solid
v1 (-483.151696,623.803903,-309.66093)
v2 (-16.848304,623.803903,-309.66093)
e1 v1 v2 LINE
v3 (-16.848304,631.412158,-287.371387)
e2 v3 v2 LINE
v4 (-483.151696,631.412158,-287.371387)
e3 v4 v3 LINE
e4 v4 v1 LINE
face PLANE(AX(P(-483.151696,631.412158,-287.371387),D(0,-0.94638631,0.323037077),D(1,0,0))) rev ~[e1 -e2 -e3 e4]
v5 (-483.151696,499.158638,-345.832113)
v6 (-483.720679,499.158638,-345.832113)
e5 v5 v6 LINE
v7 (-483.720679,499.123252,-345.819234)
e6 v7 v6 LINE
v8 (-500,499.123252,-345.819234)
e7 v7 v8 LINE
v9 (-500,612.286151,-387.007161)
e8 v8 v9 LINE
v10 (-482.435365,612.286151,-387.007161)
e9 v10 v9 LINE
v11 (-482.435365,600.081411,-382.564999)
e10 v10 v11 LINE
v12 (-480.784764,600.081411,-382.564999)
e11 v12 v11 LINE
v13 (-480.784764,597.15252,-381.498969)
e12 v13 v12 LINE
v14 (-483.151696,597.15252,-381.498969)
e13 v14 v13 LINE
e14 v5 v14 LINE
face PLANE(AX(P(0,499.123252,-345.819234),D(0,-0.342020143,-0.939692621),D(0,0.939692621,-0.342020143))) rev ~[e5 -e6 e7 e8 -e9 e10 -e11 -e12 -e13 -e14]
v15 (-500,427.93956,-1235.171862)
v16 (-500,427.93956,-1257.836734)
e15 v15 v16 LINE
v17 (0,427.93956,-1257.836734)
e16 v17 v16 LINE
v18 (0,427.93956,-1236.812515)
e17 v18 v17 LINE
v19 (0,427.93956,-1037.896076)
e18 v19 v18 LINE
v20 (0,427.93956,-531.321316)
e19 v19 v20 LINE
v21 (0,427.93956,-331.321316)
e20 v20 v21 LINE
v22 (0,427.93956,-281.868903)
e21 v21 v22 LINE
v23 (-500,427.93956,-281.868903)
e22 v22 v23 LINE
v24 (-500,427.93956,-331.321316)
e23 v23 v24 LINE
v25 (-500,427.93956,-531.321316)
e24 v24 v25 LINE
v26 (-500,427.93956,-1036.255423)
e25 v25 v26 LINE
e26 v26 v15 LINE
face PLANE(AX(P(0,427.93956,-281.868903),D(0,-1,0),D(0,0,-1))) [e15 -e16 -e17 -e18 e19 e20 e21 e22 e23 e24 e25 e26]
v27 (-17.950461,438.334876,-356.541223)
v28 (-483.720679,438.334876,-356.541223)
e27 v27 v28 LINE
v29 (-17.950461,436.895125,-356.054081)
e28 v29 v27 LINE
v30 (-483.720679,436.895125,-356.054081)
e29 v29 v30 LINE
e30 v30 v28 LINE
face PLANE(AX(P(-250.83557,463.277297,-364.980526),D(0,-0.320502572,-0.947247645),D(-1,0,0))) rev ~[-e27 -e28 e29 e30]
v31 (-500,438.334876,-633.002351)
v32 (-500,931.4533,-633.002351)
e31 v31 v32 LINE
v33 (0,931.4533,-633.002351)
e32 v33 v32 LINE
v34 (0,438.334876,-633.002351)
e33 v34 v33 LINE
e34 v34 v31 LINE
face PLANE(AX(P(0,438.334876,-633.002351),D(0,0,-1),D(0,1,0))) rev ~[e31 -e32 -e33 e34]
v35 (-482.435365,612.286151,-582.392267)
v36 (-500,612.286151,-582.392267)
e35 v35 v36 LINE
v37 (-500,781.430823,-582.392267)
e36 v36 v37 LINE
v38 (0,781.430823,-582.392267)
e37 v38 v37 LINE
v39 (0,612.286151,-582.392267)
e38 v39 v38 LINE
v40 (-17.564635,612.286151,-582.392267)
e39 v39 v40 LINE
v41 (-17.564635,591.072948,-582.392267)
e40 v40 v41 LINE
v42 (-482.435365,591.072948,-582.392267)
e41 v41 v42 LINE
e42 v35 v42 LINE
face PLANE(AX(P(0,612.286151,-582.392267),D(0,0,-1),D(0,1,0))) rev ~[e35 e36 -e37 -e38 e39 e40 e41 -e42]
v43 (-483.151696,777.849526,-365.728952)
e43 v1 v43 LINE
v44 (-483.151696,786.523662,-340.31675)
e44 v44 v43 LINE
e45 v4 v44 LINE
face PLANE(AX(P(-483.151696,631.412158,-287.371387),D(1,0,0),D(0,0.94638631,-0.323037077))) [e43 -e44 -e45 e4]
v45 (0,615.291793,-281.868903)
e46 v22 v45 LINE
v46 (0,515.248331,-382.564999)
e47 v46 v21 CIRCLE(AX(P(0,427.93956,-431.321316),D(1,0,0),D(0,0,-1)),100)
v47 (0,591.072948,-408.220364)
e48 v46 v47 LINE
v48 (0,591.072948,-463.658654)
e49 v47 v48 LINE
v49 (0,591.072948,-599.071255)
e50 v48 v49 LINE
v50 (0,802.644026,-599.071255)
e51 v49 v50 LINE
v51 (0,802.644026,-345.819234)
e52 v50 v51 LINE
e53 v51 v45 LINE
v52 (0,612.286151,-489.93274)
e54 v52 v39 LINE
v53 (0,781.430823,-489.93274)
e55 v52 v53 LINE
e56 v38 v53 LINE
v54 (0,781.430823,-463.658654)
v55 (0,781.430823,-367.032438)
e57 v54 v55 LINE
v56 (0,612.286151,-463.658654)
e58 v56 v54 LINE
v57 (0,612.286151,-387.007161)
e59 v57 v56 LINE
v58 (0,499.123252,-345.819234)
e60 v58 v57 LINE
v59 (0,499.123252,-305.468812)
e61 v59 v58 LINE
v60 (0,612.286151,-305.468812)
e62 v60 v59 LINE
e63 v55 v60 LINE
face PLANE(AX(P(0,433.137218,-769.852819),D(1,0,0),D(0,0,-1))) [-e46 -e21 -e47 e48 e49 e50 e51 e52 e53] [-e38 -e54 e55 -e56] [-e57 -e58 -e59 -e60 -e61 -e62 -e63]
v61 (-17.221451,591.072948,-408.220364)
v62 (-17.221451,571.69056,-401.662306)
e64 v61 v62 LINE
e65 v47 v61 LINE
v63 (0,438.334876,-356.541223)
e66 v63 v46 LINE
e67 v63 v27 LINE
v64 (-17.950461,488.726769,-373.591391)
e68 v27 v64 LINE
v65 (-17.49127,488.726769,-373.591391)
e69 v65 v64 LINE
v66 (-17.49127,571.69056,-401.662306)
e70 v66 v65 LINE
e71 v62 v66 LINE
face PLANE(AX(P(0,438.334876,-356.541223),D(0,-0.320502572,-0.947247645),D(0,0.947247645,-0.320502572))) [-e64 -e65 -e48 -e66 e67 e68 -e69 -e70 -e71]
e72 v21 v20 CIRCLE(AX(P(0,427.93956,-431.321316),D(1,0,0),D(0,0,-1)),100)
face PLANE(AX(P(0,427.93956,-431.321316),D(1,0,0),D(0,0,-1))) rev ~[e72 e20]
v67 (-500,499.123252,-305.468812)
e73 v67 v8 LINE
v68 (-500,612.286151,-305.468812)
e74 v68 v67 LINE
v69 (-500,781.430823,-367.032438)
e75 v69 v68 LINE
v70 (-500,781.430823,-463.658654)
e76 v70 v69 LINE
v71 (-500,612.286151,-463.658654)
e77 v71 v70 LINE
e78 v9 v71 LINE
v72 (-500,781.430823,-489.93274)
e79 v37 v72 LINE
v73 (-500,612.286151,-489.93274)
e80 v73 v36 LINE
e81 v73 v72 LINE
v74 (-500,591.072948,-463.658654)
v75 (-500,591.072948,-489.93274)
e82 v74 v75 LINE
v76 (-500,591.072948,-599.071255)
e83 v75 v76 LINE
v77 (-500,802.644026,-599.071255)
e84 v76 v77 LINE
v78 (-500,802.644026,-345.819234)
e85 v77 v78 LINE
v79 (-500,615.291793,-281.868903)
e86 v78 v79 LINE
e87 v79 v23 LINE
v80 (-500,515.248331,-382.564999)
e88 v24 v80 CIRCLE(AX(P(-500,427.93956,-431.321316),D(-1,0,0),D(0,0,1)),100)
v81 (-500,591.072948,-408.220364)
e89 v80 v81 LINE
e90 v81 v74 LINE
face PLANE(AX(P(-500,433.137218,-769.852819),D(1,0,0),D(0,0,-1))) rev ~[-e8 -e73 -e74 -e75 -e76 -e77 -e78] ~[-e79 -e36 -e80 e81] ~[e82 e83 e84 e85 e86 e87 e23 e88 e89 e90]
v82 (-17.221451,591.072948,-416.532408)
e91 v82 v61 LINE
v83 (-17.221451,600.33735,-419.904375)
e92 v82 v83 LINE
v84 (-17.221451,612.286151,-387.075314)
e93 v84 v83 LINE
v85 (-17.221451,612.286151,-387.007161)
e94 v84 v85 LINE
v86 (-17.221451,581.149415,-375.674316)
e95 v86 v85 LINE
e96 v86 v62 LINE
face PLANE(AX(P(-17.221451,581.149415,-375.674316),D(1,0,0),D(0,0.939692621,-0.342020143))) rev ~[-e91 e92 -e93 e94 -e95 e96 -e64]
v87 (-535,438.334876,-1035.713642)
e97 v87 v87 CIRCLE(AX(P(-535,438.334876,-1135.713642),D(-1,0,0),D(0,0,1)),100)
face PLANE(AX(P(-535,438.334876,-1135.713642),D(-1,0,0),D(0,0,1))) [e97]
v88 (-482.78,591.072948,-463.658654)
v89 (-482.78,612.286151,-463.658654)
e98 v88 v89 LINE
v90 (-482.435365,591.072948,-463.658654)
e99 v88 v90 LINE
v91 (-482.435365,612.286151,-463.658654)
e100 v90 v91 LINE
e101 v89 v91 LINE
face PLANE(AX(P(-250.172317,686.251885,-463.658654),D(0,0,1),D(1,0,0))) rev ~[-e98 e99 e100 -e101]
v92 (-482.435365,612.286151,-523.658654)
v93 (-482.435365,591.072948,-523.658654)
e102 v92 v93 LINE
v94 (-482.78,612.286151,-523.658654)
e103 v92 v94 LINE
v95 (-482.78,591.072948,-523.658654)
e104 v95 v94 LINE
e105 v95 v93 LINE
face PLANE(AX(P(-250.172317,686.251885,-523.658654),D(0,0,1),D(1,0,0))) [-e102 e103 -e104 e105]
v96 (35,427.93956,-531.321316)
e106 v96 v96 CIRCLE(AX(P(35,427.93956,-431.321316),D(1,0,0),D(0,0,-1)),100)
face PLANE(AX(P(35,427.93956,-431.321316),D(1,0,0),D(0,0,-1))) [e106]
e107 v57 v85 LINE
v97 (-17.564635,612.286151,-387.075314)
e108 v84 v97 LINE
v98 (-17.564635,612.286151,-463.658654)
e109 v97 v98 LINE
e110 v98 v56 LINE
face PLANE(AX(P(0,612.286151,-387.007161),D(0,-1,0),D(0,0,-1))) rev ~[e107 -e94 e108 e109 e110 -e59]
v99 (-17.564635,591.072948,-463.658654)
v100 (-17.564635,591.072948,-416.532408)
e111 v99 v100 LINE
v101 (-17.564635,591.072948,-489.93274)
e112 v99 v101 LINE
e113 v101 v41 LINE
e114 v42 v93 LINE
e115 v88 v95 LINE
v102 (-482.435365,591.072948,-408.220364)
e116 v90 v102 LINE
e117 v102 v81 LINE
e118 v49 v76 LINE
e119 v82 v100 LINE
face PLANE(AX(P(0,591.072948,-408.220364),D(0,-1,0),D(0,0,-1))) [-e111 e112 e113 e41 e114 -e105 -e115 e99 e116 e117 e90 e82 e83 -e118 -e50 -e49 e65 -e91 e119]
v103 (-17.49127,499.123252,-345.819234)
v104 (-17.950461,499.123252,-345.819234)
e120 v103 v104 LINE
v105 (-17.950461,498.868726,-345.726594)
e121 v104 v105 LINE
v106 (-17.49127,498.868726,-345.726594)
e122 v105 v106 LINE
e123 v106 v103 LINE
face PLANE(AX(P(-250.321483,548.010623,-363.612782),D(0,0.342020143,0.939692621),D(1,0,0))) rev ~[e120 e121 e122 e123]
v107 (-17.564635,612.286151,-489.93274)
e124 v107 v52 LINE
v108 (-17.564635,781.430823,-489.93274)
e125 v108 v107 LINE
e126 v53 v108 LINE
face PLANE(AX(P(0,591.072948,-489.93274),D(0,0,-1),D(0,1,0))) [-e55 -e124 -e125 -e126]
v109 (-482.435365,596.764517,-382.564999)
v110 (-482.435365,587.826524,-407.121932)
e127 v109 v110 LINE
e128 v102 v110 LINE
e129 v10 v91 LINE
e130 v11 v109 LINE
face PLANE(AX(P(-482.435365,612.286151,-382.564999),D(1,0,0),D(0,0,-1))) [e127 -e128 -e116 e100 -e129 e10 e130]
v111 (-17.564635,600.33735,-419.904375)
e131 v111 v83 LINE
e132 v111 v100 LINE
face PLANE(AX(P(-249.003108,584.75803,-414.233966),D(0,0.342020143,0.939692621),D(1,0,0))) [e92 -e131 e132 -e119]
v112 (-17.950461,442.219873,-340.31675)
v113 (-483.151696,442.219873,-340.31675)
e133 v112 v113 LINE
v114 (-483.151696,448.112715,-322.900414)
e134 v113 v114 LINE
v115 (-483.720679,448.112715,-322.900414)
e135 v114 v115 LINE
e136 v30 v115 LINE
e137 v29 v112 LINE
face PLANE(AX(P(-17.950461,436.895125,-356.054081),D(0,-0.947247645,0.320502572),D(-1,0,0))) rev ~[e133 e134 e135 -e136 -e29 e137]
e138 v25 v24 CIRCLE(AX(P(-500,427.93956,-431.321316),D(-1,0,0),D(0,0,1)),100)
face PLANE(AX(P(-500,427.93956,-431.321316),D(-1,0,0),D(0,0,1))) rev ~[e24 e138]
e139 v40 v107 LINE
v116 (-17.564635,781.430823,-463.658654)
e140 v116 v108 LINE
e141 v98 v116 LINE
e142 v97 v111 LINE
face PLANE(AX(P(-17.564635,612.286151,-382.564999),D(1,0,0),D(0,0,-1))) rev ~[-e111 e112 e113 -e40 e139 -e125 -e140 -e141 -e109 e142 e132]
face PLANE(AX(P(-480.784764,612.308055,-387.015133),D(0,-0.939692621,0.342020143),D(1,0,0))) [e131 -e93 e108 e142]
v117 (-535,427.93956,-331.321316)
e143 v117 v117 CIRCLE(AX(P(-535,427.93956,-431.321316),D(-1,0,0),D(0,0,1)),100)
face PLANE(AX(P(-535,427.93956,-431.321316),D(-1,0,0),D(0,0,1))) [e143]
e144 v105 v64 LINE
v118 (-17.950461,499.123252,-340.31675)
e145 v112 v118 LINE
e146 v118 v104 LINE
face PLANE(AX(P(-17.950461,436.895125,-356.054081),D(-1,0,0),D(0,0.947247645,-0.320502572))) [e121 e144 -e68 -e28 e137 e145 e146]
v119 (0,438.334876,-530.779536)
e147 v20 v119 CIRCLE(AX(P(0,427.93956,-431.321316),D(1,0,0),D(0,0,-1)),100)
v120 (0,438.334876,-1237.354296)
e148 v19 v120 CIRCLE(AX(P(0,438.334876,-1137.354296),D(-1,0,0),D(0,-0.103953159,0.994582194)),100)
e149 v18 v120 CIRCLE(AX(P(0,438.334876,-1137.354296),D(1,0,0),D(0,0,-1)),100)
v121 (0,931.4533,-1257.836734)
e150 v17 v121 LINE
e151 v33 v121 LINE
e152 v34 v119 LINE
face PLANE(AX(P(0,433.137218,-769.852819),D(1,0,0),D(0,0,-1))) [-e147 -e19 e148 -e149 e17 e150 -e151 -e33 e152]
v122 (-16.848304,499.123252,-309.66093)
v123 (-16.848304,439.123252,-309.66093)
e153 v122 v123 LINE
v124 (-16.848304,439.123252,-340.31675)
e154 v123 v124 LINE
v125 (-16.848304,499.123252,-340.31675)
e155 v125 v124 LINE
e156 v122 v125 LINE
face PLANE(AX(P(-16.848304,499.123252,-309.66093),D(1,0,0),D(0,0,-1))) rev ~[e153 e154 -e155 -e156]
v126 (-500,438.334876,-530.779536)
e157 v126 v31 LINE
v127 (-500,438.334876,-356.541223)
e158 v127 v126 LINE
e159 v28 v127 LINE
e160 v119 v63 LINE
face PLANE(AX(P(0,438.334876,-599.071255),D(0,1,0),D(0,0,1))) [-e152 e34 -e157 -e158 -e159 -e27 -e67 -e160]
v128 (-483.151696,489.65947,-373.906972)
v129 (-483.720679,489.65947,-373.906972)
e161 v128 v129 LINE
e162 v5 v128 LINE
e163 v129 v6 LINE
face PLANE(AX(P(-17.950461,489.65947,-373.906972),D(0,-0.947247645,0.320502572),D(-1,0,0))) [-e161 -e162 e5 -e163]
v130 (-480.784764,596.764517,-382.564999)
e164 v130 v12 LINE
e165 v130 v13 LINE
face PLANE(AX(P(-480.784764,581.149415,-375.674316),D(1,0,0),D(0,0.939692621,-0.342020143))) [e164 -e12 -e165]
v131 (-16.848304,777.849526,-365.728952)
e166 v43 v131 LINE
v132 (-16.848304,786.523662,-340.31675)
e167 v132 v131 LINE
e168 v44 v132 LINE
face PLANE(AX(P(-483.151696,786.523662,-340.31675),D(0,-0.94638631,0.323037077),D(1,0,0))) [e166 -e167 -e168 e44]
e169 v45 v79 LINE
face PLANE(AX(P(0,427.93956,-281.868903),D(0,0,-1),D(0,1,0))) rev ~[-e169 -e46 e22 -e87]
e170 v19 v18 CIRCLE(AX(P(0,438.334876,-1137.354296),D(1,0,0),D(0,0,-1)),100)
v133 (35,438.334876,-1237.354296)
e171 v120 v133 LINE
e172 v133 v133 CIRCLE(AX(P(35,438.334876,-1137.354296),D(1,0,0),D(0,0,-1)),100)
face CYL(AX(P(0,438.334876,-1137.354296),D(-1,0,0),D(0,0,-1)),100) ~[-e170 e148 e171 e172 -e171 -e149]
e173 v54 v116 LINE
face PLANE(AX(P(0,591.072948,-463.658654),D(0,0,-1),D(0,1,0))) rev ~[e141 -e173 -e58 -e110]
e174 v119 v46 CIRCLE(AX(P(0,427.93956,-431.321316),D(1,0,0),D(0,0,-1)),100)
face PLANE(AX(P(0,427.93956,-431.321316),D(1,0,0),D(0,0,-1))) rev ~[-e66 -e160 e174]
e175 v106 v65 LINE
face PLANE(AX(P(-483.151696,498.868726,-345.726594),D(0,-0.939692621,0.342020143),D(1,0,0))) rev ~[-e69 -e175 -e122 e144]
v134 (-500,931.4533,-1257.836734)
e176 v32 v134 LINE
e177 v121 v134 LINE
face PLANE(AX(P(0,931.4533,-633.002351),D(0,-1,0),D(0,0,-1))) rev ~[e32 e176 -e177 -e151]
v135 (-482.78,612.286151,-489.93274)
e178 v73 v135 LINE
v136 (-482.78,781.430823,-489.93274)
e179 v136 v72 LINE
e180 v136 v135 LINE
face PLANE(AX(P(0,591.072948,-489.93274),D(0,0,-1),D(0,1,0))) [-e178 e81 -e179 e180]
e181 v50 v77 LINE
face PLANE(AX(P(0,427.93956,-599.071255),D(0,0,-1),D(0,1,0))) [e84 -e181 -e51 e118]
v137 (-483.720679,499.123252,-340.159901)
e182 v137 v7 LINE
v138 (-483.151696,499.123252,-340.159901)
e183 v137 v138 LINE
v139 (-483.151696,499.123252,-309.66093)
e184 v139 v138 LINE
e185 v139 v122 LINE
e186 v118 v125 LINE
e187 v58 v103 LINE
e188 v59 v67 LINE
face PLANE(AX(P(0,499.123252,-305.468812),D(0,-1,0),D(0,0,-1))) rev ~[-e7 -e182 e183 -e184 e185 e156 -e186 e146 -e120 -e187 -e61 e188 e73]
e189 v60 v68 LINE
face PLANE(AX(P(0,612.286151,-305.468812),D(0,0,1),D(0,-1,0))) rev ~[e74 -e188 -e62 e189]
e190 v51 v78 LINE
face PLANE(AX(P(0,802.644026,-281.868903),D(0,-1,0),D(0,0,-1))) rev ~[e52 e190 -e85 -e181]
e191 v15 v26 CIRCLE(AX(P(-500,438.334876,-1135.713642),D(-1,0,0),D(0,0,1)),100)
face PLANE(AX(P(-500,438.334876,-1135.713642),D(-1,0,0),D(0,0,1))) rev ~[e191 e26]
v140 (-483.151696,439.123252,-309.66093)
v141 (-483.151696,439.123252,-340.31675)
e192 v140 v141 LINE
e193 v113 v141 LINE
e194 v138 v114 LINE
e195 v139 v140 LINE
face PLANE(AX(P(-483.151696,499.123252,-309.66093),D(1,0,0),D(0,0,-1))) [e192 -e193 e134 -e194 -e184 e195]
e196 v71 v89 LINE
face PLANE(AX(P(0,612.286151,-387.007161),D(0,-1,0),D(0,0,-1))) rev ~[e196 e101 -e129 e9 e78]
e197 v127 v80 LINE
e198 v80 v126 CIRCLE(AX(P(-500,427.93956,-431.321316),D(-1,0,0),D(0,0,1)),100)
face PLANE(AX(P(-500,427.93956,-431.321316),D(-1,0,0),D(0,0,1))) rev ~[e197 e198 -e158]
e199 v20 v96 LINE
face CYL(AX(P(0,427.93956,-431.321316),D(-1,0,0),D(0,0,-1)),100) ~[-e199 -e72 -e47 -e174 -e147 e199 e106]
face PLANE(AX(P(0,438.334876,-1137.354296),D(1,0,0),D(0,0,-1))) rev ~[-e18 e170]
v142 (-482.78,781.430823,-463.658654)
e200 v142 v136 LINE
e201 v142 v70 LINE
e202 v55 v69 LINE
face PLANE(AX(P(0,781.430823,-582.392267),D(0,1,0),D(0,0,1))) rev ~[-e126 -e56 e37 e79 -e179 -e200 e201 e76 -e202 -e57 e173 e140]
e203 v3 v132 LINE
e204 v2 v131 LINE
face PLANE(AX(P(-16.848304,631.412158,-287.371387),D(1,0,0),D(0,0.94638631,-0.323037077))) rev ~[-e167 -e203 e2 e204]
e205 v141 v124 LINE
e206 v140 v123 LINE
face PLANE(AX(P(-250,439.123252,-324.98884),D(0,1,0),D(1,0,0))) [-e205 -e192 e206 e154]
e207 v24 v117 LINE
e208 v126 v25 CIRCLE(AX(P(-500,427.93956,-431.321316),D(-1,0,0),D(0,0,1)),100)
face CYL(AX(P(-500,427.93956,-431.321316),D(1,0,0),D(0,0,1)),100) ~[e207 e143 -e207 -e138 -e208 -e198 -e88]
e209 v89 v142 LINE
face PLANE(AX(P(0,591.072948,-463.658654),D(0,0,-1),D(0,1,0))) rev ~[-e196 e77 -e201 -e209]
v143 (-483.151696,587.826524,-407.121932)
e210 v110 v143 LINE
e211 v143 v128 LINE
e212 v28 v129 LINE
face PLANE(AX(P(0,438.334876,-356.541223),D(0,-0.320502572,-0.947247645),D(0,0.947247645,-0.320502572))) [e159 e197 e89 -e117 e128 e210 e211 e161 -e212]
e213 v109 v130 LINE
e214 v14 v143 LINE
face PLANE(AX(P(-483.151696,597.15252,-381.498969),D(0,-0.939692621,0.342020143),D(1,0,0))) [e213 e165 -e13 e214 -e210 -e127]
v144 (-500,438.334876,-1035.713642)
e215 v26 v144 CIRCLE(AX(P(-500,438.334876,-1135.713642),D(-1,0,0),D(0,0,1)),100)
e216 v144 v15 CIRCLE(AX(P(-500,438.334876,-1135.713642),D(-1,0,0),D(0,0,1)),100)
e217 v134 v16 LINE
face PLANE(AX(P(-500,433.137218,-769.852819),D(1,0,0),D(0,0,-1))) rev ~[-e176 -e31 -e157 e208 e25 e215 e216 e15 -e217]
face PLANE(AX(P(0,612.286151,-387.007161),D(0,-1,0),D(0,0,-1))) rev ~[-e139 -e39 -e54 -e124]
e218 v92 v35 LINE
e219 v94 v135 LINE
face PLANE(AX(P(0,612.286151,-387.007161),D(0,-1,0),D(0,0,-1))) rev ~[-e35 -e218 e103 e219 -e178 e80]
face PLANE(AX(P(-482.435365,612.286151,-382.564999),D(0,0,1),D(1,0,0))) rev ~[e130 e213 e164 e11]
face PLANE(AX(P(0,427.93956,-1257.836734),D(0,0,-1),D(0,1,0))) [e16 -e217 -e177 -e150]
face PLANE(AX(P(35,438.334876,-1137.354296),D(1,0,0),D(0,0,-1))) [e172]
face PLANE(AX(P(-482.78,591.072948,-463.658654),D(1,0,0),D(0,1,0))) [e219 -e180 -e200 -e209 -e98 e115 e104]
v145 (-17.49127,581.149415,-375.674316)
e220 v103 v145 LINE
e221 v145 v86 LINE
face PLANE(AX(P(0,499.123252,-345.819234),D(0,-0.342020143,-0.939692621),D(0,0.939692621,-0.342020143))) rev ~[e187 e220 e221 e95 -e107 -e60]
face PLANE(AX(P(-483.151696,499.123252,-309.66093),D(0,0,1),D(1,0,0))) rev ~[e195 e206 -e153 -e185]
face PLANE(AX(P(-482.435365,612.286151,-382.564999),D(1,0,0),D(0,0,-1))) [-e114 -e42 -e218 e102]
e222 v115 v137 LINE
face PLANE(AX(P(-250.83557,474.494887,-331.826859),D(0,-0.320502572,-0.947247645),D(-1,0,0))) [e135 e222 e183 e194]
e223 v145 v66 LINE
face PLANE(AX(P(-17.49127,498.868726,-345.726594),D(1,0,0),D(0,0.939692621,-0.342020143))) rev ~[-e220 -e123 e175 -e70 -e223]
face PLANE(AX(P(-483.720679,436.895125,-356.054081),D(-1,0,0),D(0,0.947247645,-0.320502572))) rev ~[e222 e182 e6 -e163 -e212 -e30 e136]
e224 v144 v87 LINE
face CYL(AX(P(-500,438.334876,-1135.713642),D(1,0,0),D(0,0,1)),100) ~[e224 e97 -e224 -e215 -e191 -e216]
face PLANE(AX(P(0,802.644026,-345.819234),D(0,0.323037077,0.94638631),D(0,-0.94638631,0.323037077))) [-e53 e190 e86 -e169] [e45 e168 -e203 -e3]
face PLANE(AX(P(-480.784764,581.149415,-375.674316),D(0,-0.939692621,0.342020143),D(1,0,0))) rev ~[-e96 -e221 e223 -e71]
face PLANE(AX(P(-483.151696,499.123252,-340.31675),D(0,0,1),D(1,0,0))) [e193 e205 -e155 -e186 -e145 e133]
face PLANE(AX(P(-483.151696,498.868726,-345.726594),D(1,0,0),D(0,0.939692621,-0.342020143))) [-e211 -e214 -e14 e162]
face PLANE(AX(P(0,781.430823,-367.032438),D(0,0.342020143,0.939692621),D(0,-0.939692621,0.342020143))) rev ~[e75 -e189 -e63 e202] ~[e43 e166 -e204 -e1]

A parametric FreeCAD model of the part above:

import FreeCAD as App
import Part
import Sketcher
from FreeCAD import Vector
Q = App.Units.Quantity

doc = App.newDocument("Part")
body = doc.addObject("PartDesign::Body", "Body")

# Sketch on YZ plane
sketch1 = body.newObject("Sketcher::SketchObject", "Sketch")
sketch1.AttachmentSupport = (doc.getObject("YZ_Plane"), [""])
sketch1.MapMode = "FlatFace"
sketch1.addGeometry(Part.LineSegment(Vector(931, -633, 0), Vector(438, -633, 0)), False)
sketch1.addGeometry(Part.LineSegment(Vector(438, -633, 0), Vector(438, -1258, 0)), False)
sketch1.addGeometry(Part.LineSegment(Vector(438, -1258, 0), Vector(931, -1258, 0)), False)
sketch1.addGeometry(Part.LineSegment(Vector(931, -1258, 0), Vector(931, -633, 0)), False)
sketch1.addConstraint(Sketcher.Constraint("Coincident", 0, 2, 1, 1))
sketch1.addConstraint(Sketcher.Constraint("Coincident", 1, 2, 2, 1))
sketch1.addConstraint(Sketcher.Constraint("Coincident", 2, 2, 3, 1))
sketch1.addConstraint(Sketcher.Constraint("Coincident", 3, 2, 0, 1))
sketch1.addConstraint(Sketcher.Constraint("Horizontal", 0))
sketch1.addConstraint(Sketcher.Constraint("Vertical", 1))
sketch1.addConstraint(Sketcher.Constraint("Horizontal", 2))
sketch1.addConstraint(Sketcher.Constraint("Vertical", 3))
sketch1.addConstraint(Sketcher.Constraint("DistanceX", -1, 1, 2, 2, Q("931.4533 mm")))
sketch1.addConstraint(Sketcher.Constraint("DistanceX", 0, 2, 0, 1, Q("493.118424 mm")))
sketch1.addConstraint(Sketcher.Constraint("DistanceY", 1, 2, 1, 1, Q("624.834383 mm")))
sketch1.addConstraint(Sketcher.Constraint("DistanceY", 0, 2, -1, 1, Q("633.002351 mm")))
pad1 = body.newObject("PartDesign::Pad", "Pad")
pad1.Profile = sketch1
pad1.Length = 500
pad1.Reversed = True

# Sketch on YZ plane
sketch2 = body.newObject("Sketcher::SketchObject", "Sketch001")
sketch2.AttachmentSupport = (doc.getObject("YZ_Plane"), [""])
sketch2.MapMode = "FlatFace"
sketch2.addGeometry(Part.Circle(Vector(438, -1137, 0), Vector(0, 0, 1), 100), False)
sketch2.addConstraint(Sketcher.Constraint("Diameter", 0, Q("200 mm")))
sketch2.addConstraint(Sketcher.Constraint("DistanceX", -1, 1, 0, 3, Q("438.334876 mm")))
sketch2.addConstraint(Sketcher.Constraint("DistanceY", 0, 3, -1, 1, Q("1137.354296 mm")))
pad2 = body.newObject("PartDesign::Pad", "Pad001")
pad2.Profile = sketch2
pad2.Length = 35

# Sketch on YZ plane
sketch3 = body.newObject("Sketcher::SketchObject", "Sketch002")
sketch3.AttachmentSupport = (doc.getObject("YZ_Plane"), [""])
sketch3.MapMode = "FlatFace"
sketch3.addGeometry(Part.LineSegment(Vector(438, -282, 0), Vector(428, -282, 0)), False)
sketch3.addGeometry(Part.LineSegment(Vector(428, -282, 0), Vector(428, -1258, 0)), False)
sketch3.addGeometry(Part.LineSegment(Vector(428, -1258, 0), Vector(438, -1258, 0)), False)
sketch3.addGeometry(Part.LineSegment(Vector(438, -1258, 0), Vector(438, -282, 0)), False)
sketch3.addConstraint(Sketcher.Constraint("Coincident", 0, 2, 1, 1))
sketch3.addConstraint(Sketcher.Constraint("Coincident", 1, 2, 2, 1))
sketch3.addConstraint(Sketcher.Constraint("Coincident", 2, 2, 3, 1))
sketch3.addConstraint(Sketcher.Constraint("Coincident", 3, 2, 0, 1))
sketch3.addConstraint(Sketcher.Constraint("Horizontal", 0))
sketch3.addConstraint(Sketcher.Constraint("Vertical", 1))
sketch3.addConstraint(Sketcher.Constraint("Horizontal", 2))
sketch3.addConstraint(Sketcher.Constraint("Vertical", 3))
sketch3.addConstraint(Sketcher.Constraint("DistanceY", 1, 2, 1, 1, Q("975.967831 mm")))
sketch3.addConstraint(Sketcher.Constraint("DistanceX", 0, 2, 0, 1, Q("10.395316 mm")))
sketch3.addConstraint(Sketcher.Constraint("DistanceX", -1, 1, 0, 2, Q("427.93956 mm")))
sketch3.addConstraint(Sketcher.Constraint("DistanceY", 0, 2, -1, 1, Q("281.868903 mm")))
pad3 = body.newObject("PartDesign::Pad", "Pad002")
pad3.Profile = sketch3
pad3.Length = 500
pad3.Reversed = True

# Sketch on YZ plane
sketch4 = body.newObject("Sketcher::SketchObject", "Sketch003")
sketch4.AttachmentSupport = (doc.getObject("YZ_Plane"), [""])
sketch4.MapMode = "FlatFace"
sketch4.addGeometry(Part.LineSegment(Vector(803, -282, 0), Vector(428, -282, 0)), False)
sketch4.addGeometry(Part.LineSegment(Vector(428, -282, 0), Vector(428, -599, 0)), False)
sketch4.addGeometry(Part.LineSegment(Vector(428, -599, 0), Vector(803, -599, 0)), False)
sketch4.addGeometry(Part.LineSegment(Vector(803, -599, 0), Vector(803, -282, 0)), False)
sketch4.addConstraint(Sketcher.Constraint("Coincident", 0, 2, 1, 1))
sketch4.addConstraint(Sketcher.Constraint("Coincident", 1, 2, 2, 1))
sketch4.addConstraint(Sketcher.Constraint("Coincident", 2, 2, 3, 1))
sketch4.addConstraint(Sketcher.Constraint("Coincident", 3, 2, 0, 1))
sketch4.addConstraint(Sketcher.Constraint("Horizontal", 0))
sketch4.addConstraint(Sketcher.Constraint("Vertical", 1))
sketch4.addConstraint(Sketcher.Constraint("Horizontal", 2))
sketch4.addConstraint(Sketcher.Constraint("Vertical", 3))
sketch4.addConstraint(Sketcher.Constraint("DistanceY", 1, 2, 1, 1, Q("317.202352 mm")))
sketch4.addConstraint(Sketcher.Constraint("DistanceX", 0, 2, 0, 1, Q("374.704466 mm")))
sketch4.addConstraint(Sketcher.Constraint("DistanceX", -1, 1, 0, 2, Q("427.93956 mm")))
sketch4.addConstraint(Sketcher.Constraint("DistanceY", 0, 2, -1, 1, Q("281.868903 mm")))
pad4 = body.newObject("PartDesign::Pad", "Pad003")
pad4.Profile = sketch4
pad4.Length = 500
pad4.Reversed = True

# Sketch on YZ plane
sketch5 = body.newObject("Sketcher::SketchObject", "Sketch004")
sketch5.AttachmentSupport = (doc.getObject("YZ_Plane"), [""])
sketch5.MapMode = "FlatFace"
sketch5.addGeometry(Part.LineSegment(Vector(803, -346, 0), Vector(803, -282, 0)), False)
sketch5.addGeometry(Part.LineSegment(Vector(803, -282, 0), Vector(615, -282, 0)), False)
sketch5.addGeometry(Part.LineSegment(Vector(615, -282, 0), Vector(803, -346, 0)), False)
sketch5.addConstraint(Sketcher.Constraint("Coincident", 0, 2, 1, 1))
sketch5.addConstraint(Sketcher.Constraint("Coincident", 1, 2, 2, 1))
sketch5.addConstraint(Sketcher.Constraint("Coincident", 2, 2, 0, 1))
sketch5.addConstraint(Sketcher.Constraint("Vertical", 0))
sketch5.addConstraint(Sketcher.Constraint("Horizontal", 1))
sketch5.addConstraint(Sketcher.Constraint("DistanceY", 0, 1, 0, 2, Q("63.950331 mm")))
sketch5.addConstraint(Sketcher.Constraint("DistanceX", 1, 2, 1, 1, Q("187.352233 mm")))
sketch5.addConstraint(Sketcher.Constraint("DistanceX", -1, 1, 0, 2, Q("802.644026 mm")))
sketch5.addConstraint(Sketcher.Constraint("DistanceY", 0, 2, -1, 1, Q("281.868903 mm")))
pocket1 = body.newObject("PartDesign::Pocket", "Pocket")
pocket1.Profile = sketch5
pocket1.Length = 500

# Sketch on YZ plane
sketch6 = body.newObject("Sketcher::SketchObject", "Sketch005")
sketch6.AttachmentSupport = (doc.getObject("YZ_Plane"), [""])
sketch6.MapMode = "FlatFace"
sketch6.addGeometry(Part.LineSegment(Vector(781, -367, 0), Vector(612, -305, 0)), False)
sketch6.addGeometry(Part.LineSegment(Vector(612, -305, 0), Vector(499, -305, 0)), False)
sketch6.addGeometry(Part.LineSegment(Vector(499, -305, 0), Vector(499, -346, 0)), False)
sketch6.addGeometry(Part.LineSegment(Vector(499, -346, 0), Vector(612, -387, 0)), False)
sketch6.addGeometry(Part.LineSegment(Vector(612, -387, 0), Vector(612, -582, 0)), False)
sketch6.addGeometry(Part.LineSegment(Vector(612, -582, 0), Vector(781, -582, 0)), False)
sketch6.addGeometry(Part.LineSegment(Vector(781, -582, 0), Vector(781, -367, 0)), False)
sketch6.addConstraint(Sketcher.Constraint("Coincident", 0, 2, 1, 1))
sketch6.addConstraint(Sketcher.Constraint("Coincident", 1, 2, 2, 1))
sketch6.addConstraint(Sketcher.Constraint("Coincident", 2, 2, 3, 1))
sketch6.addConstraint(Sketcher.Constraint("Coincident", 3, 2, 4, 1))
sketch6.addConstraint(Sketcher.Constraint("Coincident", 4, 2, 5, 1))
sketch6.addConstraint(Sketcher.Constraint("Coincident", 5, 2, 6, 1))
sketch6.addConstraint(Sketcher.Constraint("Coincident", 6, 2, 0, 1))
sketch6.addConstraint(Sketcher.Constraint("Horizontal", 1))
sketch6.addConstraint(Sketcher.Constraint("Vertical", 2))
sketch6.addConstraint(Sketcher.Constraint("Vertical", 4))
sketch6.addConstraint(Sketcher.Constraint("Horizontal", 5))
sketch6.addConstraint(Sketcher.Constraint("Vertical", 6))
sketch6.addConstraint(Sketcher.Constraint("Parallel", 0, 3))
sketch6.addConstraint(Sketcher.Constraint("Vertical", 0, 2, 3, 2))
sketch6.addConstraint(Sketcher.Constraint("Angle", 0, Q("160 deg")))
sketch6.addConstraint(Sketcher.Constraint("Distance", 0, Q("180 mm")))
sketch6.addConstraint(Sketcher.Constraint("DistanceX", 1, 2, 1, 1, Q("113.162899 mm")))
sketch6.addConstraint(Sketcher.Constraint("DistanceY", 6, 1, 6, 2, Q("215.359829 mm")))
sketch6.addConstraint(Sketcher.Constraint("DistanceY", 2, 2, 2, 1, Q("40.350422 mm")))
sketch6.addConstraint(Sketcher.Constraint("DistanceX", -1, 1, 0, 2, Q("612.286151 mm")))
sketch6.addConstraint(Sketcher.Constraint("DistanceY", 0, 2, -1, 1, Q("305.468812 mm")))
pocket2 = body.newObject("PartDesign::Pocket", "Pocket001")
pocket2.Profile = sketch6
pocket2.Length = 500

# Sketch on YZ plane
sketch7 = body.newObject("Sketcher::SketchObject", "Sketch006")
sketch7.AttachmentSupport = (doc.getObject("YZ_Plane"), [""])
sketch7.MapMode = "FlatFace"
sketch7.addGeometry(Part.LineSegment(Vector(438, -357, 0), Vector(438, -599, 0)), False)
sketch7.addGeometry(Part.LineSegment(Vector(438, -599, 0), Vector(591, -599, 0)), False)
sketch7.addGeometry(Part.LineSegment(Vector(591, -599, 0), Vector(591, -408, 0)), False)
sketch7.addGeometry(Part.LineSegment(Vector(591, -408, 0), Vector(438, -357, 0)), False)
sketch7.addConstraint(Sketcher.Constraint("Coincident", 0, 2, 1, 1))
sketch7.addConstraint(Sketcher.Constraint("Coincident", 1, 2, 2, 1))
sketch7.addConstraint(Sketcher.Constraint("Coincident", 2, 2, 3, 1))
sketch7.addConstraint(Sketcher.Constraint("Coincident", 3, 2, 0, 1))
sketch7.addConstraint(Sketcher.Constraint("Vertical", 0))
sketch7.addConstraint(Sketcher.Constraint("Horizontal", 1))
sketch7.addConstraint(Sketcher.Constraint("Vertical", 2))
sketch7.addConstraint(Sketcher.Constraint("DistanceX", 1, 1, 1, 2, Q("152.738072 mm")))
sketch7.addConstraint(Sketcher.Constraint("DistanceY", 0, 2, 0, 1, Q("242.530032 mm")))
sketch7.addConstraint(Sketcher.Constraint("DistanceY", 2, 1, 2, 2, Q("190.85089 mm")))
sketch7.addConstraint(Sketcher.Constraint("DistanceX", -1, 1, 0, 2, Q("438.334876 mm")))
sketch7.addConstraint(Sketcher.Constraint("DistanceY", 0, 2, -1, 1, Q("599.071255 mm")))
pocket3 = body.newObject("PartDesign::Pocket", "Pocket002")
pocket3.Profile = sketch7
pocket3.Length = 500

# Sketch on YZ plane
sketch8 = body.newObject("Sketcher::SketchObject", "Sketch007")
sketch8.AttachmentSupport = (doc.getObject("YZ_Plane"), [""])
sketch8.MapMode = "FlatFace"
sketch8.addGeometry(Part.Circle(Vector(428, -431, 0), Vector(0, 0, 1), 100), False)
sketch8.addConstraint(Sketcher.Constraint("Diameter", 0, Q("200 mm")))
sketch8.addConstraint(Sketcher.Constraint("DistanceX", -1, 1, 0, 3, Q("427.93956 mm")))
sketch8.addConstraint(Sketcher.Constraint("DistanceY", 0, 3, -1, 1, Q("431.321316 mm")))
pad5 = body.newObject("PartDesign::Pad", "Pad004")
pad5.Profile = sketch8
pad5.Length = 35

# Sketch on an angled plane
sketch9 = body.newObject("Sketcher::SketchObject", "Sketch008")
sketch9.Placement = App.Placement(Vector(0, -21.964844, -64.349356), App.Rotation(Vector(1, 0, 0), Vector(0, 0.94638631, -0.323037077), Vector(0, 0.323037077, 0.94638631), "ZXY"))
sketch9.addGeometry(Part.LineSegment(Vector(-483, 854, 0), Vector(-483, 690, 0)), False)
sketch9.addGeometry(Part.LineSegment(Vector(-483, 690, 0), Vector(-17, 690, 0)), False)
sketch9.addGeometry(Part.LineSegment(Vector(-17, 690, 0), Vector(-17, 854, 0)), False)
sketch9.addGeometry(Part.LineSegment(Vector(-17, 854, 0), Vector(-483, 854, 0)), False)
sketch9.addConstraint(Sketcher.Constraint("Coincident", 0, 2, 1, 1))
sketch9.addConstraint(Sketcher.Constraint("Coincident", 1, 2, 2, 1))
sketch9.addConstraint(Sketcher.Constraint("Coincident", 2, 2, 3, 1))
sketch9.addConstraint(Sketcher.Constraint("Coincident", 3, 2, 0, 1))
sketch9.addConstraint(Sketcher.Constraint("Vertical", 0))
sketch9.addConstraint(Sketcher.Constraint("Horizontal", 1))
sketch9.addConstraint(Sketcher.Constraint("Vertical", 2))
sketch9.addConstraint(Sketcher.Constraint("Horizontal", 3))
sketch9.addConstraint(Sketcher.Constraint("DistanceX", 1, 1, 1, 2, Q("466.303391 mm")))
sketch9.addConstraint(Sketcher.Constraint("DistanceY", 0, 2, 0, 1, Q("163.898719 mm")))
sketch9.addConstraint(Sketcher.Constraint("DistanceX", 0, 2, -1, 1, Q("483.151696 mm")))
sketch9.addConstraint(Sketcher.Constraint("DistanceY", -1, 1, 0, 2, Q("690.391436 mm")))
pocket4 = body.newObject("PartDesign::Pocket", "Pocket003")
pocket4.Profile = sketch9
pocket4.Length = 35

# Sketch on XZ plane
sketch10 = body.newObject("Sketcher::SketchObject", "Sketch009")
sketch10.AttachmentSupport = (doc.getObject("XZ_Plane"), [""])
sketch10.MapMode = "FlatFace"
sketch10.AttachmentOffset = App.Placement(Vector(0, 0, -612.286151), App.Rotation())
sketch10.addGeometry(Part.LineSegment(Vector(-482, -582, 0), Vector(-482, -383, 0)), False)
sketch10.addGeometry(Part.LineSegment(Vector(-482, -383, 0), Vector(-18, -383, 0)), False)
sketch10.addGeometry(Part.LineSegment(Vector(-18, -383, 0), Vector(-18, -582, 0)), False)
sketch10.addGeometry(Part.LineSegment(Vector(-18, -582, 0), Vector(-482, -582, 0)), False)
sketch10.addConstraint(Sketcher.Constraint("Coincident", 0, 2, 1, 1))
sketch10.addConstraint(Sketcher.Constraint("Coincident", 1, 2, 2, 1))
sketch10.addConstraint(Sketcher.Constraint("Coincident", 2, 2, 3, 1))
sketch10.addConstraint(Sketcher.Constraint("Coincident", 3, 2, 0, 1))
sketch10.addConstraint(Sketcher.Constraint("Vertical", 0))
sketch10.addConstraint(Sketcher.Constraint("Horizontal", 1))
sketch10.addConstraint(Sketcher.Constraint("Vertical", 2))
sketch10.addConstraint(Sketcher.Constraint("Horizontal", 3))
sketch10.addConstraint(Sketcher.Constraint("DistanceY", 0, 2, -1, 1, Q("382.564999 mm")))
sketch10.addConstraint(Sketcher.Constraint("DistanceX", 1, 1, 1, 2, Q("464.870731 mm")))
sketch10.addConstraint(Sketcher.Constraint("DistanceY", 0, 1, 0, 2, Q("199.827268 mm")))
sketch10.addConstraint(Sketcher.Constraint("DistanceX", 0, 2, -1, 1, Q("482.435365 mm")))
pocket5 = body.newObject("PartDesign::Pocket", "Pocket004")
pocket5.Profile = sketch10
pocket5.Length = 35
pocket5.Reversed = True

# Sketch on an angled plane
sketch11 = body.newObject("Sketcher::SketchObject", "Sketch010")
sketch11.Placement = App.Placement(Vector(0, -52.75783, -144.950947), App.Rotation(Vector(1, 0, 0), Vector(0, 0.939692621, -0.342020143), Vector(0, 0.342020143, 0.939692621), "ZXY"))
sketch11.addGeometry(Part.LineSegment(Vector(-483, 692, 0), Vector(-483, 587, 0)), False)
sketch11.addGeometry(Part.LineSegment(Vector(-483, 587, 0), Vector(-17, 587, 0)), False)
sketch11.addGeometry(Part.LineSegment(Vector(-17, 587, 0), Vector(-17, 692, 0)), False)
sketch11.addGeometry(Part.LineSegment(Vector(-17, 692, 0), Vector(-483, 692, 0)), False)
sketch11.addConstraint(Sketcher.Constraint("Coincident", 0, 2, 1, 1))
sketch11.addConstraint(Sketcher.Constraint("Coincident", 1, 2, 2, 1))
sketch11.addConstraint(Sketcher.Constraint("Coincident", 2, 2, 3, 1))
sketch11.addConstraint(Sketcher.Constraint("Coincident", 3, 2, 0, 1))
sketch11.addConstraint(Sketcher.Constraint("Vertical", 0))
sketch11.addConstraint(Sketcher.Constraint("Horizontal", 1))
sketch11.addConstraint(Sketcher.Constraint("Vertical", 2))
sketch11.addConstraint(Sketcher.Constraint("Horizontal", 3))
sketch11.addConstraint(Sketcher.Constraint("DistanceY", 0, 2, 0, 1, Q("104.591429 mm")))
sketch11.addConstraint(Sketcher.Constraint("DistanceX", 1, 1, 1, 2, Q("465.660426 mm")))
sketch11.addConstraint(Sketcher.Constraint("DistanceY", -1, 1, 0, 2, Q("587.02872 mm")))
sketch11.addConstraint(Sketcher.Constraint("DistanceX", 1, 2, -1, 1, Q("17.49127 mm")))
pocket6 = body.newObject("PartDesign::Pocket", "Pocket005")
pocket6.Profile = sketch11
pocket6.Length = 35

# Sketch on an angled plane
sketch12 = body.newObject("Sketcher::SketchObject", "Sketch011")
sketch12.Placement = App.Placement(Vector(0, -52.75783, -144.950947), App.Rotation(Vector(1, 0, 0), Vector(0, 0.939692621, -0.342020143), Vector(0, 0.342020143, 0.939692621), "ZXY"))
sketch12.addGeometry(Part.LineSegment(Vector(-481, 708, 0), Vector(-481, 675, 0)), False)
sketch12.addGeometry(Part.LineSegment(Vector(-481, 675, 0), Vector(-17, 675, 0)), False)
sketch12.addGeometry(Part.LineSegment(Vector(-17, 675, 0), Vector(-17, 708, 0)), False)
sketch12.addGeometry(Part.LineSegment(Vector(-17, 708, 0), Vector(-481, 708, 0)), False)
sketch12.addConstraint(Sketcher.Constraint("Coincident", 0, 2, 1, 1))
sketch12.addConstraint(Sketcher.Constraint("Coincident", 1, 2, 2, 1))
sketch12.addConstraint(Sketcher.Constraint("Coincident", 2, 2, 3, 1))
sketch12.addConstraint(Sketcher.Constraint("Coincident", 3, 2, 0, 1))
sketch12.addConstraint(Sketcher.Constraint("Vertical", 0))
sketch12.addConstraint(Sketcher.Constraint("Horizontal", 1))
sketch12.addConstraint(Sketcher.Constraint("Vertical", 2))
sketch12.addConstraint(Sketcher.Constraint("Horizontal", 3))
sketch12.addConstraint(Sketcher.Constraint("DistanceY", -1, 1, 0, 2, Q("674.590001 mm")))
sketch12.addConstraint(Sketcher.Constraint("DistanceX", 1, 1, 1, 2, Q("463.563313 mm")))
sketch12.addConstraint(Sketcher.Constraint("DistanceY", 0, 2, 0, 1, Q("33.158332 mm")))
sketch12.addConstraint(Sketcher.Constraint("DistanceX", 1, 2, -1, 1, Q("17.221451 mm")))
pocket7 = body.newObject("PartDesign::Pocket", "Pocket006")
pocket7.Profile = sketch12
pocket7.Length = 35

# Sketch on an angled plane
sketch13 = body.newObject("Sketcher::SketchObject", "Sketch012")
sketch13.Placement = App.Placement(Vector(0, -63.217651, -186.840221), App.Rotation(Vector(-1, 0, 0), Vector(0, 0.947247645, -0.320502572), Vector(0, -0.320502572, -0.947247645), "ZXY"))
sketch13.addGeometry(Part.LineSegment(Vector(18, 584, 0), Vector(18, 528, 0)), False)
sketch13.addGeometry(Part.LineSegment(Vector(18, 528, 0), Vector(484, 528, 0)), False)
sketch13.addGeometry(Part.LineSegment(Vector(484, 528, 0), Vector(484, 584, 0)), False)
sketch13.addGeometry(Part.LineSegment(Vector(484, 584, 0), Vector(18, 584, 0)), False)
sketch13.addConstraint(Sketcher.Constraint("Coincident", 0, 2, 1, 1))
sketch13.addConstraint(Sketcher.Constraint("Coincident", 1, 2, 2, 1))
sketch13.addConstraint(Sketcher.Constraint("Coincident", 2, 2, 3, 1))
sketch13.addConstraint(Sketcher.Constraint("Coincident", 3, 2, 0, 1))
sketch13.addConstraint(Sketcher.Constraint("Vertical", 0))
sketch13.addConstraint(Sketcher.Constraint("Horizontal", 1))
sketch13.addConstraint(Sketcher.Constraint("Vertical", 2))
sketch13.addConstraint(Sketcher.Constraint("Horizontal", 3))
sketch13.addConstraint(Sketcher.Constraint("DistanceY", 0, 2, 0, 1, Q("55.7028 mm")))
sketch13.addConstraint(Sketcher.Constraint("DistanceX", 1, 1, 1, 2, Q("465.770218 mm")))
sketch13.addConstraint(Sketcher.Constraint("DistanceX", -1, 1, 0, 2, Q("17.950461 mm")))
sketch13.addConstraint(Sketcher.Constraint("DistanceY", -1, 1, 0, 2, Q("527.964127 mm")))
pocket8 = body.newObject("PartDesign::Pocket", "Pocket007")
pocket8.Profile = sketch13
pocket8.Length = 35

# Sketch on XZ plane
sketch14 = body.newObject("Sketcher::SketchObject", "Sketch013")
sketch14.AttachmentSupport = (doc.getObject("XZ_Plane"), [""])
sketch14.MapMode = "FlatFace"
sketch14.AttachmentOffset = App.Placement(Vector(0, 0, -499.123252), App.Rotation())
sketch14.addGeometry(Part.LineSegment(Vector(-483, -340, 0), Vector(-483, -310, 0)), False)
sketch14.addGeometry(Part.LineSegment(Vector(-483, -310, 0), Vector(-17, -310, 0)), False)
sketch14.addGeometry(Part.LineSegment(Vector(-17, -310, 0), Vector(-17, -340, 0)), False)
sketch14.addGeometry(Part.LineSegment(Vector(-17, -340, 0), Vector(-483, -340, 0)), False)
sketch14.addConstraint(Sketcher.Constraint("Coincident", 0, 2, 1, 1))
sketch14.addConstraint(Sketcher.Constraint("Coincident", 1, 2, 2, 1))
sketch14.addConstraint(Sketcher.Constraint("Coincident", 2, 2, 3, 1))
sketch14.addConstraint(Sketcher.Constraint("Coincident", 3, 2, 0, 1))
sketch14.addConstraint(Sketcher.Constraint("Vertical", 0))
sketch14.addConstraint(Sketcher.Constraint("Horizontal", 1))
sketch14.addConstraint(Sketcher.Constraint("Vertical", 2))
sketch14.addConstraint(Sketcher.Constraint("Horizontal", 3))
sketch14.addConstraint(Sketcher.Constraint("DistanceX", 1, 1, 1, 2, Q("466.303391 mm")))
sketch14.addConstraint(Sketcher.Constraint("DistanceY", 0, 1, 0, 2, Q("30.65582 mm")))
sketch14.addConstraint(Sketcher.Constraint("DistanceY", 0, 2, -1, 1, Q("309.66093 mm")))
sketch14.addConstraint(Sketcher.Constraint("DistanceX", 0, 2, -1, 1, Q("483.151696 mm")))
pocket9 = body.newObject("PartDesign::Pocket", "Pocket008")
pocket9.Profile = sketch14
pocket9.Length = 60
pocket9.Reversed = True

# Sketch on YZ plane
sketch15 = body.newObject("Sketcher::SketchObject", "Sketch014")
sketch15.AttachmentSupport = (doc.getObject("YZ_Plane"), [""])
sketch15.MapMode = "FlatFace"
sketch15.addGeometry(Part.LineSegment(Vector(803, -464, 0), Vector(591, -464, 0)), False)
sketch15.addGeometry(Part.LineSegment(Vector(591, -464, 0), Vector(591, -490, 0)), False)
sketch15.addGeometry(Part.LineSegment(Vector(591, -490, 0), Vector(803, -490, 0)), False)
sketch15.addGeometry(Part.LineSegment(Vector(803, -490, 0), Vector(803, -464, 0)), False)
sketch15.addConstraint(Sketcher.Constraint("Coincident", 0, 2, 1, 1))
sketch15.addConstraint(Sketcher.Constraint("Coincident", 1, 2, 2, 1))
sketch15.addConstraint(Sketcher.Constraint("Coincident", 2, 2, 3, 1))
sketch15.addConstraint(Sketcher.Constraint("Coincident", 3, 2, 0, 1))
sketch15.addConstraint(Sketcher.Constraint("Horizontal", 0))
sketch15.addConstraint(Sketcher.Constraint("Vertical", 1))
sketch15.addConstraint(Sketcher.Constraint("Horizontal", 2))
sketch15.addConstraint(Sketcher.Constraint("Vertical", 3))
sketch15.addConstraint(Sketcher.Constraint("DistanceX", 0, 2, 0, 1, Q("211.571079 mm")))
sketch15.addConstraint(Sketcher.Constraint("DistanceY", 1, 2, 1, 1, Q("26.274087 mm")))
sketch15.addConstraint(Sketcher.Constraint("DistanceY", 1, 2, -1, 1, Q("489.93274 mm")))
sketch15.addConstraint(Sketcher.Constraint("DistanceX", -1, 1, 0, 2, Q("591.072948 mm")))
pad6 = body.newObject("PartDesign::Pad", "Pad005")
pad6.Profile = sketch15
pad6.Length = 500
pad6.Reversed = True

# Sketch on XY plane
sketch16 = body.newObject("Sketcher::SketchObject", "Sketch015")
sketch16.AttachmentSupport = (doc.getObject("XY_Plane"), [""])
sketch16.MapMode = "FlatFace"
sketch16.AttachmentOffset = App.Placement(Vector(0, 0, -463.658654), App.Rotation())
sketch16.addGeometry(Part.LineSegment(Vector(-483, 781, 0), Vector(-483, 591, 0)), False)
sketch16.addGeometry(Part.LineSegment(Vector(-483, 591, 0), Vector(-18, 591, 0)), False)
sketch16.addGeometry(Part.LineSegment(Vector(-18, 591, 0), Vector(-18, 781, 0)), False)
sketch16.addGeometry(Part.LineSegment(Vector(-18, 781, 0), Vector(-483, 781, 0)), False)
sketch16.addConstraint(Sketcher.Constraint("Coincident", 0, 2, 1, 1))
sketch16.addConstraint(Sketcher.Constraint("Coincident", 1, 2, 2, 1))
sketch16.addConstraint(Sketcher.Constraint("Coincident", 2, 2, 3, 1))
sketch16.addConstraint(Sketcher.Constraint("Coincident", 3, 2, 0, 1))
sketch16.addConstraint(Sketcher.Constraint("Vertical", 0))
sketch16.addConstraint(Sketcher.Constraint("Horizontal", 1))
sketch16.addConstraint(Sketcher.Constraint("Vertical", 2))
sketch16.addConstraint(Sketcher.Constraint("Horizontal", 3))
sketch16.addConstraint(Sketcher.Constraint("DistanceX", 0, 2, -1, 1, Q("482.78 mm")))
sketch16.addConstraint(Sketcher.Constraint("DistanceX", 1, 1, 1, 2, Q("465.215365 mm")))
sketch16.addConstraint(Sketcher.Constraint("DistanceY", 0, 2, 0, 1, Q("190.357875 mm")))
sketch16.addConstraint(Sketcher.Constraint("DistanceY", -1, 1, 0, 2, Q("591.072948 mm")))
pocket10 = body.newObject("PartDesign::Pocket", "Pocket009")
pocket10.Profile = sketch16
pocket10.Length = 60

# Sketch on YZ plane
sketch17 = body.newObject("Sketcher::SketchObject", "Sketch016")
sketch17.AttachmentSupport = (doc.getObject("YZ_Plane"), [""])
sketch17.MapMode = "FlatFace"
sketch17.AttachmentOffset = App.Placement(Vector(0, 0, -500), App.Rotation())
sketch17.addGeometry(Part.Circle(Vector(428, -431, 0), Vector(0, 0, 1), 100), False)
sketch17.addGeometry(Part.Circle(Vector(438, -1136, 0), Vector(0, 0, 1), 100), False)
sketch17.addConstraint(Sketcher.Constraint("Equal", 0, 1))
sketch17.addConstraint(Sketcher.Constraint("Diameter", 0, Q("200 mm")))
sketch17.addConstraint(Sketcher.Constraint("DistanceX", -1, 1, 0, 3, Q("427.93956 mm")))
sketch17.addConstraint(Sketcher.Constraint("DistanceY", 0, 3, -1, 1, Q("431.321316 mm")))
sketch17.addConstraint(Sketcher.Constraint("DistanceX", -1, 1, 1, 3, Q("438.334876 mm")))
sketch17.addConstraint(Sketcher.Constraint("DistanceY", 1, 3, -1, 1, Q("1135.713642 mm")))
pad7 = body.newObject("PartDesign::Pad", "Pad006")
pad7.Profile = sketch17
pad7.Length = 35
pad7.Reversed = True

doc.recompute()
